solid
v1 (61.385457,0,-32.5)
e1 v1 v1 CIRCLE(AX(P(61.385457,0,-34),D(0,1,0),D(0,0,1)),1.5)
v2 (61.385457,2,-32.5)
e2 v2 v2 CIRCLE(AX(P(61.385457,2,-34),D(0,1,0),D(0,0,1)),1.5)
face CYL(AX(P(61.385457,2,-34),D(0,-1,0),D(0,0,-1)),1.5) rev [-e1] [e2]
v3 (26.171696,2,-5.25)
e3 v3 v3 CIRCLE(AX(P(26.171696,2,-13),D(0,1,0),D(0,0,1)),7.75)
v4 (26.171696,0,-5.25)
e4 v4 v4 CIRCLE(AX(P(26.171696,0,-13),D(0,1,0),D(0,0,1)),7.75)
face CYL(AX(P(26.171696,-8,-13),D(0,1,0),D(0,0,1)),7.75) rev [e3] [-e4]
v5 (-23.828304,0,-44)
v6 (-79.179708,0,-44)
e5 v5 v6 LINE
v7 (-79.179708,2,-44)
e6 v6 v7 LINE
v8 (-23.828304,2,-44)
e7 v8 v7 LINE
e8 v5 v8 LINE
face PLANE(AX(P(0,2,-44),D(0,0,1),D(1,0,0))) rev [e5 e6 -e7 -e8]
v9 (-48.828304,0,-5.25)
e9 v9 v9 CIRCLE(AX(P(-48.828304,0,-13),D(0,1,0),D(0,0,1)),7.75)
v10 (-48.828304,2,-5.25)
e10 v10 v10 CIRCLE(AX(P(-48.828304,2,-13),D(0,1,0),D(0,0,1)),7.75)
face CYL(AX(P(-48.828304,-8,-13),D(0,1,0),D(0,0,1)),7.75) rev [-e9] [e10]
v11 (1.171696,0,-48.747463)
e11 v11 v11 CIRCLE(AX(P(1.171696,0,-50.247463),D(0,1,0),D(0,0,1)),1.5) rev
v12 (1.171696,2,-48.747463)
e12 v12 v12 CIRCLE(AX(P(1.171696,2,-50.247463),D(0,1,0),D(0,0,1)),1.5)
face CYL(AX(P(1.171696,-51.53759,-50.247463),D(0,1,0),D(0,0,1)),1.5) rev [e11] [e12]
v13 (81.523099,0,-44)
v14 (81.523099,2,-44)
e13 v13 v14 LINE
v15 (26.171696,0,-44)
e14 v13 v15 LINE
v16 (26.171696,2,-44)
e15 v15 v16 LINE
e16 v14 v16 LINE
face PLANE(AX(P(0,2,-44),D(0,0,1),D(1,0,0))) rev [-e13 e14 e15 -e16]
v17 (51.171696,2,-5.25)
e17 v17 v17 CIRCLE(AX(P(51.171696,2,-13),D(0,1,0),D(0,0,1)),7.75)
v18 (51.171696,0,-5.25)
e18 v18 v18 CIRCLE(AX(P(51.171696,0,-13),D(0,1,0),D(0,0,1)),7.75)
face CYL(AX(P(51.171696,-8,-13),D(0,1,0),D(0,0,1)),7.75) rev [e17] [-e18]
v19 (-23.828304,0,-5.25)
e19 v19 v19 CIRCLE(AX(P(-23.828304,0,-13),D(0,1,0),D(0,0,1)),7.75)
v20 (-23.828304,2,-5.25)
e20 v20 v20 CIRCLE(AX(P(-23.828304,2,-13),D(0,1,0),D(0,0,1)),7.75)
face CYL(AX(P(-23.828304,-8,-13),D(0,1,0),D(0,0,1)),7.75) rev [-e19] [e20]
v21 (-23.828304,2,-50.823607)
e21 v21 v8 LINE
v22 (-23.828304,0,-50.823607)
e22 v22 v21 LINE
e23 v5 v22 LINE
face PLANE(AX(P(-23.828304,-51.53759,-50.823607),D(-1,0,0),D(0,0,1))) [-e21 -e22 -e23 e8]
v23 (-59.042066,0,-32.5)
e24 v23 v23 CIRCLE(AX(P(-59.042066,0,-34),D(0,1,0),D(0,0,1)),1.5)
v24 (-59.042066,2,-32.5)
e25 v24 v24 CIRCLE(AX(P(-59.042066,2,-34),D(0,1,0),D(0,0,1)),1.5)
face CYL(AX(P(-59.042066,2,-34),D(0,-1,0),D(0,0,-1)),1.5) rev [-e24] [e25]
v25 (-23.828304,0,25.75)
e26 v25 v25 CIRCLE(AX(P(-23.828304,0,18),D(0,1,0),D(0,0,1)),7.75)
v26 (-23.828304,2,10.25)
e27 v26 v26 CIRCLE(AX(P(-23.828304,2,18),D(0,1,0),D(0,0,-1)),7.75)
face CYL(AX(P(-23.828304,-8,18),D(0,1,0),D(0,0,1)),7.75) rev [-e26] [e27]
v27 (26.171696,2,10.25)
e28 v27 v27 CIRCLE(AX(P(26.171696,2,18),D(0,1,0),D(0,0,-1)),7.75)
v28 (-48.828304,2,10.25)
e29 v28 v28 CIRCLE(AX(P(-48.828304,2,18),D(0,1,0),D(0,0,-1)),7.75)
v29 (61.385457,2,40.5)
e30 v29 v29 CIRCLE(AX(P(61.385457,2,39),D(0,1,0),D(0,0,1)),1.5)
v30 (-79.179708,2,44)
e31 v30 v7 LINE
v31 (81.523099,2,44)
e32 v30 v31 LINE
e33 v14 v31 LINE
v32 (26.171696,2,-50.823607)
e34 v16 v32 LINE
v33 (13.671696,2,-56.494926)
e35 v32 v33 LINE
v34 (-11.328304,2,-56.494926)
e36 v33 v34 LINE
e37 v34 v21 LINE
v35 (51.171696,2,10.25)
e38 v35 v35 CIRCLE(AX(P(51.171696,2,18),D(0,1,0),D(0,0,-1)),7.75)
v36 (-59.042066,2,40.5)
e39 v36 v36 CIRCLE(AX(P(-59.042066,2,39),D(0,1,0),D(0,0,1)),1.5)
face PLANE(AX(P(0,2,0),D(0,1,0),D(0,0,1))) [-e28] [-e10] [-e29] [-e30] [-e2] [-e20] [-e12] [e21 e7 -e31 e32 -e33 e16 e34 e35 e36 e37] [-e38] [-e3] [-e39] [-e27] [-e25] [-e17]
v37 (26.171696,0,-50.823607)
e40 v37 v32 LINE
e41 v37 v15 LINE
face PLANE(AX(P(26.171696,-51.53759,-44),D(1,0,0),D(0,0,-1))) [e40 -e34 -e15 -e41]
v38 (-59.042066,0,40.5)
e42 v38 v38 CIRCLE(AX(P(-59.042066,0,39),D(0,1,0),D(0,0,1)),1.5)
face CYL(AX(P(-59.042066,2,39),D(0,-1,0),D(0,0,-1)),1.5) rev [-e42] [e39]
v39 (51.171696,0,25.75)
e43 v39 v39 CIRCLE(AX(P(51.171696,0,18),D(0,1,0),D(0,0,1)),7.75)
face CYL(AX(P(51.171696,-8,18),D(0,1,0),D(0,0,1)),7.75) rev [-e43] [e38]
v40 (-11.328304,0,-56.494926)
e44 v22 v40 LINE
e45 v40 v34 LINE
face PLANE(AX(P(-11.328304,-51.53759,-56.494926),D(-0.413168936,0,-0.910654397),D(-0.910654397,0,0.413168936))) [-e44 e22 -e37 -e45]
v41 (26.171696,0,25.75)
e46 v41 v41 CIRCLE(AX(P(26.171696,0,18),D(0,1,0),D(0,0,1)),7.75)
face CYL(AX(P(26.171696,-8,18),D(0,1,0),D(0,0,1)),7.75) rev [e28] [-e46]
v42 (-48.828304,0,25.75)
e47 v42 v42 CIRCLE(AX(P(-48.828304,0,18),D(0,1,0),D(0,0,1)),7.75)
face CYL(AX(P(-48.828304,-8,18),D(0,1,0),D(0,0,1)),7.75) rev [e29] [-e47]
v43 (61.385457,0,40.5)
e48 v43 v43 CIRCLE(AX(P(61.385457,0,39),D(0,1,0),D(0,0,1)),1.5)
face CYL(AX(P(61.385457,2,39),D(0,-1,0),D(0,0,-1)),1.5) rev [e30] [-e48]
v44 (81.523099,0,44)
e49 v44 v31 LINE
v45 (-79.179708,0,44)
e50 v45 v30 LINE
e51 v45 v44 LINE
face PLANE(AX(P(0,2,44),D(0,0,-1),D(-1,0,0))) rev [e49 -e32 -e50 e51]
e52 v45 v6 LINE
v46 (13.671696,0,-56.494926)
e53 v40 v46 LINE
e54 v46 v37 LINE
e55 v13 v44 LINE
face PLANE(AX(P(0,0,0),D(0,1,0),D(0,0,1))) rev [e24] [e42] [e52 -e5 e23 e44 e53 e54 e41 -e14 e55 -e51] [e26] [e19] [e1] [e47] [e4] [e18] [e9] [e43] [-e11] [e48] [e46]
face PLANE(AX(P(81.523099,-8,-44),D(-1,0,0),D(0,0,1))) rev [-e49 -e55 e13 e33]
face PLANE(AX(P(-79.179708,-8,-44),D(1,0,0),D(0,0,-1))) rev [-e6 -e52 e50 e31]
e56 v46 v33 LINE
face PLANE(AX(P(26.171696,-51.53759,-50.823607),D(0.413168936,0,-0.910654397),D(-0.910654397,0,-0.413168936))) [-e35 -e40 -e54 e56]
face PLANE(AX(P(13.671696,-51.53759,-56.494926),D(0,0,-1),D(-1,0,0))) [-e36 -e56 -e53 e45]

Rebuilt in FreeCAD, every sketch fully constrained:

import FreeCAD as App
import Part
import Sketcher


def add_polygon(sketch, points):
    """Adds a closed chain of lines whose ends are joined by coincident constraints."""
    first, n = sketch.GeometryCount, len(points)
    for a, b in zip(points, points[1:] + points[:1]):
        sketch.addGeometry(Part.LineSegment(App.Vector(*a, 0), App.Vector(*b, 0)), False)
    for i in range(n):
        sketch.addConstraint(Sketcher.Constraint("Coincident", first + i, 2, first + (i + 1) % n, 1))

doc = App.newDocument("Part")
body = doc.addObject("PartDesign::Body", "Body")

sketch1 = doc.addObject("Sketcher::SketchObject", "Sketch")
body.addObject(sketch1)
sketch1.AttachmentSupport = (doc.XZ_Plane, [""])
sketch1.MapMode = "FlatFace"
add_polygon(sketch1, [(-76.679708, -44), (-76.679708, 44), (79.023099, 44), (79.023099, -44)])
sketch1.addGeometry(Part.Circle(App.Vector(-59.042066, 39, 0), App.Vector(0, 0, 1), 1.5), False)
sketch1.addGeometry(Part.Circle(App.Vector(61.385457, 39, 0), App.Vector(0, 0, 1), 1.5), False)
sketch1.addGeometry(Part.Circle(App.Vector(-59.042066, -34, 0), App.Vector(0, 0, 1), 1.5), False)
sketch1.addGeometry(Part.Circle(App.Vector(61.385457, -34, 0), App.Vector(0, 0, 1), 1.5), False)
sketch1.addConstraint(Sketcher.Constraint("Vertical", 0))
sketch1.addConstraint(Sketcher.Constraint("Horizontal", 1))
sketch1.addConstraint(Sketcher.Constraint("Vertical", 2))
sketch1.addConstraint(Sketcher.Constraint("Horizontal", 3))
sketch1.addConstraint(Sketcher.Constraint("Equal", 4, 5))
sketch1.addConstraint(Sketcher.Constraint("Equal", 5, 6))
sketch1.addConstraint(Sketcher.Constraint("Equal", 6, 7))
sketch1.addConstraint(Sketcher.Constraint("Horizontal", 4, 3, 5, 3))
sketch1.addConstraint(Sketcher.Constraint("Horizontal", 6, 3, 7, 3))
sketch1.addConstraint(Sketcher.Constraint("Vertical", 4, 3, 6, 3))
sketch1.addConstraint(Sketcher.Constraint("Vertical", 5, 3, 7, 3))
sketch1.addConstraint(Sketcher.Constraint("Diameter", 4, 3.0))
sketch1.addConstraint(Sketcher.Constraint("DistanceY", 0, 1, 0, 2, 88.0))
sketch1.addConstraint(Sketcher.Constraint("DistanceY", -1, 1, 4, 3, 39.0))
sketch1.addConstraint(Sketcher.Constraint("DistanceY", 6, 3, -1, 1, 34.0))
sketch1.addConstraint(Sketcher.Constraint("DistanceY", -1, 1, 0, 2, 44.0))
sketch1.addConstraint(Sketcher.Constraint("DistanceX", -1, 1, 1, 2, 79.023099))
sketch1.addConstraint(Sketcher.Constraint("DistanceX", 1, 1, 1, 2, 155.702807))
sketch1.addConstraint(Sketcher.Constraint("DistanceX", 4, 3, -1, 1, 59.042066))
sketch1.addConstraint(Sketcher.Constraint("DistanceX", -1, 1, 5, 3, 61.385457))
pad1 = doc.addObject("PartDesign::Pad", "Pad")
body.addObject(pad1)
pad1.Profile = sketch1
pad1.Length = 2
pad1.Reversed = True

sketch2 = doc.addObject("Sketcher::SketchObject", "Sketch001")
body.addObject(sketch2)
sketch2.AttachmentSupport = (doc.XZ_Plane, [""])
sketch2.MapMode = "FlatFace"
sketch2.AttachmentOffset = App.Placement(App.Vector(0, 0, -2), App.Rotation())
add_polygon(sketch2, [(79.023099, -44), (79.023099, 44), (84.023099, 44), (84.023099, -44)])
add_polygon(sketch2, [(-81.679708, -44), (-81.679708, 44), (-76.679708, 44), (-76.679708, -44)])
sketch2.addConstraint(Sketcher.Constraint("Vertical", 0))
sketch2.addConstraint(Sketcher.Constraint("Horizontal", 1))
sketch2.addConstraint(Sketcher.Constraint("Vertical", 2))
sketch2.addConstraint(Sketcher.Constraint("Horizontal", 3))
sketch2.addConstraint(Sketcher.Constraint("Vertical", 4))
sketch2.addConstraint(Sketcher.Constraint("Horizontal", 5))
sketch2.addConstraint(Sketcher.Constraint("Vertical", 6))
sketch2.addConstraint(Sketcher.Constraint("Horizontal", 7))
sketch2.addConstraint(Sketcher.Constraint("Horizontal", 1, 2, 4, 2))
sketch2.addConstraint(Sketcher.Constraint("Horizontal", 3, 2, 6, 2))
sketch2.addConstraint(Sketcher.Constraint("Equal", 3, 5))
sketch2.addConstraint(Sketcher.Constraint("DistanceX", 1, 1, 1, 2, 5.0))
sketch2.addConstraint(Sketcher.Constraint("DistanceY", 0, 1, 0, 2, 88.0))
sketch2.addConstraint(Sketcher.Constraint("DistanceY", -1, 1, 0, 2, 44.0))
sketch2.addConstraint(Sketcher.Constraint("DistanceX", -1, 1, 0, 2, 79.023099))
sketch2.addConstraint(Sketcher.Constraint("DistanceX", 4, 2, -1, 1, 81.679708))
pad2 = doc.addObject("PartDesign::Pad", "Pad001")
body.addObject(pad2)
pad2.Profile = sketch2
pad2.Length = 2

sketch3 = doc.addObject("Sketcher::SketchObject", "Sketch002")
body.addObject(sketch3)
sketch3.AttachmentSupport = (doc.XZ_Plane, [""])
sketch3.MapMode = "FlatFace"
sketch3.AttachmentOffset = App.Placement(App.Vector(0, 0, -2), App.Rotation())
sketch3.addGeometry(Part.Circle(App.Vector(26.171696, -13, 0), App.Vector(0, 0, 1), 7.75), False)
sketch3.addGeometry(Part.Circle(App.Vector(51.171696, -13, 0), App.Vector(0, 0, 1), 7.75), False)
sketch3.addGeometry(Part.Circle(App.Vector(-23.828304, -13, 0), App.Vector(0, 0, 1), 7.75), False)
sketch3.addGeometry(Part.Circle(App.Vector(-48.828304, -13, 0), App.Vector(0, 0, 1), 7.75), False)
sketch3.addGeometry(Part.Circle(App.Vector(-48.828304, 18, 0), App.Vector(0, 0, 1), 7.75), False)
sketch3.addGeometry(Part.Circle(App.Vector(-23.828304, 18, 0), App.Vector(0, 0, 1), 7.75), False)
sketch3.addGeometry(Part.Circle(App.Vector(51.171696, 18, 0), App.Vector(0, 0, 1), 7.75), False)
sketch3.addGeometry(Part.Circle(App.Vector(26.171696, 18, 0), App.Vector(0, 0, 1), 7.75), False)
sketch3.addConstraint(Sketcher.Constraint("Equal", 0, 1))
sketch3.addConstraint(Sketcher.Constraint("Equal", 1, 2))
sketch3.addConstraint(Sketcher.Constraint("Equal", 2, 3))
sketch3.addConstraint(Sketcher.Constraint("Equal", 3, 4))
sketch3.addConstraint(Sketcher.Constraint("Equal", 4, 5))
sketch3.addConstraint(Sketcher.Constraint("Equal", 5, 6))
sketch3.addConstraint(Sketcher.Constraint("Equal", 6, 7))
sketch3.addConstraint(Sketcher.Constraint("Horizontal", 0, 3, 1, 3))
sketch3.addConstraint(Sketcher.Constraint("Horizontal", 1, 3, 2, 3))
sketch3.addConstraint(Sketcher.Constraint("Horizontal", 2, 3, 3, 3))
sketch3.addConstraint(Sketcher.Constraint("Horizontal", 4, 3, 5, 3))
sketch3.addConstraint(Sketcher.Constraint("Horizontal", 5, 3, 6, 3))
sketch3.addConstraint(Sketcher.Constraint("Horizontal", 6, 3, 7, 3))
sketch3.addConstraint(Sketcher.Constraint("Vertical", 3, 3, 4, 3))
sketch3.addConstraint(Sketcher.Constraint("Vertical", 2, 3, 5, 3))
sketch3.addConstraint(Sketcher.Constraint("Vertical", 1, 3, 6, 3))
sketch3.addConstraint(Sketcher.Constraint("Vertical", 0, 3, 7, 3))
sketch3.addConstraint(Sketcher.Constraint("Diameter", 0, 15.5))
sketch3.addConstraint(Sketcher.Constraint("DistanceY", 0, 3, -1, 1, 13.0))
sketch3.addConstraint(Sketcher.Constraint("DistanceY", -1, 1, 4, 3, 18.0))
sketch3.addConstraint(Sketcher.Constraint("DistanceX", 0, 3, 1, 3, 25.0))
sketch3.addConstraint(Sketcher.Constraint("DistanceX", 2, 3, 0, 3, 50.0))
sketch3.addConstraint(Sketcher.Constraint("DistanceX", 3, 3, 2, 3, 25.0))
sketch3.addConstraint(Sketcher.Constraint("DistanceX", -1, 1, 0, 3, 26.171696))
pocket1 = doc.addObject("PartDesign::Pocket", "Pocket")
body.addObject(pocket1)
pocket1.Profile = sketch3
pocket1.Length = 10
pocket1.Reversed = True

sketch4 = doc.addObject("Sketcher::SketchObject", "Sketch003")
body.addObject(sketch4)
sketch4.AttachmentSupport = (doc.XZ_Plane, [""])
sketch4.MapMode = "FlatFace"
sketch4.AttachmentOffset = App.Placement(App.Vector(0, 0, -2), App.Rotation())
add_polygon(sketch4, [(-23.828304, -44), (26.171696, -44), (26.171696, -50.823607), (13.671696, -56.494926), (-11.328304, -56.494926), (-23.828304, -50.823607)])
sketch4.addGeometry(Part.Circle(App.Vector(1.171696, -50.247463, 0), App.Vector(0, 0, 1), 1.5), False)
sketch4.addConstraint(Sketcher.Constraint("Horizontal", 0))
sketch4.addConstraint(Sketcher.Constraint("Vertical", 1))
sketch4.addConstraint(Sketcher.Constraint("Horizontal", 3))
sketch4.addConstraint(Sketcher.Constraint("Vertical", 5))
sketch4.addConstraint(Sketcher.Constraint("Horizontal", 1, 2, 4, 2))
sketch4.addConstraint(Sketcher.Constraint("Equal", 2, 4))
sketch4.addConstraint(Sketcher.Constraint("Diameter", 6, 3.0))
sketch4.addConstraint(Sketcher.Constraint("DistanceX", 0, 1, 0, 2, 50.0))
sketch4.addConstraint(Sketcher.Constraint("DistanceX", 3, 2, 3, 1, 25.0))
sketch4.addConstraint(Sketcher.Constraint("DistanceY", 0, 2, -1, 1, 44.0))
sketch4.addConstraint(Sketcher.Constraint("DistanceX", 6, 3, 0, 2, 25.0))
sketch4.addConstraint(Sketcher.Constraint("DistanceY", 1, 2, 1, 1, 6.823607))
sketch4.addConstraint(Sketcher.Constraint("DistanceY", 2, 2, 1, 2, 5.671319))
sketch4.addConstraint(Sketcher.Constraint("DistanceX", -1, 1, 6, 3, 1.171696))
sketch4.addConstraint(Sketcher.Constraint("DistanceY", 6, 3, -1, 1, 50.247463))
pad3 = doc.addObject("PartDesign::Pad", "Pad002")
body.addObject(pad3)
pad3.Profile = sketch4
pad3.Length = 2

sketch5 = doc.addObject("Sketcher::SketchObject", "Sketch004")
body.addObject(sketch5)
sketch5.AttachmentSupport = (doc.XZ_Plane, [""])
sketch5.MapMode = "FlatFace"
sketch5.AttachmentOffset = App.Placement(App.Vector(0, 0, -2), App.Rotation())
add_polygon(sketch5, [(-81.679708, -44), (-81.679708, 44), (-79.179708, 44), (-79.179708, -44)])
add_polygon(sketch5, [(81.523099, -44), (81.523099, 44), (84.023099, 44), (84.023099, -44)])
sketch5.addConstraint(Sketcher.Constraint("Vertical", 0))
sketch5.addConstraint(Sketcher.Constraint("Horizontal", 1))
sketch5.addConstraint(Sketcher.Constraint("Vertical", 2))
sketch5.addConstraint(Sketcher.Constraint("Horizontal", 3))
sketch5.addConstraint(Sketcher.Constraint("Vertical", 4))
sketch5.addConstraint(Sketcher.Constraint("Horizontal", 5))
sketch5.addConstraint(Sketcher.Constraint("Vertical", 6))
sketch5.addConstraint(Sketcher.Constraint("Horizontal", 7))
sketch5.addConstraint(Sketcher.Constraint("Horizontal", 1, 2, 4, 2))
sketch5.addConstraint(Sketcher.Constraint("Horizontal", 3, 2, 6, 2))
sketch5.addConstraint(Sketcher.Constraint("Equal", 3, 5))
sketch5.addConstraint(Sketcher.Constraint("DistanceY", 0, 1, 0, 2, 88.0))
sketch5.addConstraint(Sketcher.Constraint("DistanceX", 1, 1, 1, 2, 2.5))
sketch5.addConstraint(Sketcher.Constraint("DistanceY", -1, 1, 0, 2, 44.0))
sketch5.addConstraint(Sketcher.Constraint("DistanceX", -1, 1, 4, 2, 81.523099))
sketch5.addConstraint(Sketcher.Constraint("DistanceX", 0, 2, -1, 1, 81.679708))
pocket2 = doc.addObject("PartDesign::Pocket", "Pocket001")
body.addObject(pocket2)
pocket2.Profile = sketch5
pocket2.Length = 10
pocket2.Reversed = True

doc.recompute()
